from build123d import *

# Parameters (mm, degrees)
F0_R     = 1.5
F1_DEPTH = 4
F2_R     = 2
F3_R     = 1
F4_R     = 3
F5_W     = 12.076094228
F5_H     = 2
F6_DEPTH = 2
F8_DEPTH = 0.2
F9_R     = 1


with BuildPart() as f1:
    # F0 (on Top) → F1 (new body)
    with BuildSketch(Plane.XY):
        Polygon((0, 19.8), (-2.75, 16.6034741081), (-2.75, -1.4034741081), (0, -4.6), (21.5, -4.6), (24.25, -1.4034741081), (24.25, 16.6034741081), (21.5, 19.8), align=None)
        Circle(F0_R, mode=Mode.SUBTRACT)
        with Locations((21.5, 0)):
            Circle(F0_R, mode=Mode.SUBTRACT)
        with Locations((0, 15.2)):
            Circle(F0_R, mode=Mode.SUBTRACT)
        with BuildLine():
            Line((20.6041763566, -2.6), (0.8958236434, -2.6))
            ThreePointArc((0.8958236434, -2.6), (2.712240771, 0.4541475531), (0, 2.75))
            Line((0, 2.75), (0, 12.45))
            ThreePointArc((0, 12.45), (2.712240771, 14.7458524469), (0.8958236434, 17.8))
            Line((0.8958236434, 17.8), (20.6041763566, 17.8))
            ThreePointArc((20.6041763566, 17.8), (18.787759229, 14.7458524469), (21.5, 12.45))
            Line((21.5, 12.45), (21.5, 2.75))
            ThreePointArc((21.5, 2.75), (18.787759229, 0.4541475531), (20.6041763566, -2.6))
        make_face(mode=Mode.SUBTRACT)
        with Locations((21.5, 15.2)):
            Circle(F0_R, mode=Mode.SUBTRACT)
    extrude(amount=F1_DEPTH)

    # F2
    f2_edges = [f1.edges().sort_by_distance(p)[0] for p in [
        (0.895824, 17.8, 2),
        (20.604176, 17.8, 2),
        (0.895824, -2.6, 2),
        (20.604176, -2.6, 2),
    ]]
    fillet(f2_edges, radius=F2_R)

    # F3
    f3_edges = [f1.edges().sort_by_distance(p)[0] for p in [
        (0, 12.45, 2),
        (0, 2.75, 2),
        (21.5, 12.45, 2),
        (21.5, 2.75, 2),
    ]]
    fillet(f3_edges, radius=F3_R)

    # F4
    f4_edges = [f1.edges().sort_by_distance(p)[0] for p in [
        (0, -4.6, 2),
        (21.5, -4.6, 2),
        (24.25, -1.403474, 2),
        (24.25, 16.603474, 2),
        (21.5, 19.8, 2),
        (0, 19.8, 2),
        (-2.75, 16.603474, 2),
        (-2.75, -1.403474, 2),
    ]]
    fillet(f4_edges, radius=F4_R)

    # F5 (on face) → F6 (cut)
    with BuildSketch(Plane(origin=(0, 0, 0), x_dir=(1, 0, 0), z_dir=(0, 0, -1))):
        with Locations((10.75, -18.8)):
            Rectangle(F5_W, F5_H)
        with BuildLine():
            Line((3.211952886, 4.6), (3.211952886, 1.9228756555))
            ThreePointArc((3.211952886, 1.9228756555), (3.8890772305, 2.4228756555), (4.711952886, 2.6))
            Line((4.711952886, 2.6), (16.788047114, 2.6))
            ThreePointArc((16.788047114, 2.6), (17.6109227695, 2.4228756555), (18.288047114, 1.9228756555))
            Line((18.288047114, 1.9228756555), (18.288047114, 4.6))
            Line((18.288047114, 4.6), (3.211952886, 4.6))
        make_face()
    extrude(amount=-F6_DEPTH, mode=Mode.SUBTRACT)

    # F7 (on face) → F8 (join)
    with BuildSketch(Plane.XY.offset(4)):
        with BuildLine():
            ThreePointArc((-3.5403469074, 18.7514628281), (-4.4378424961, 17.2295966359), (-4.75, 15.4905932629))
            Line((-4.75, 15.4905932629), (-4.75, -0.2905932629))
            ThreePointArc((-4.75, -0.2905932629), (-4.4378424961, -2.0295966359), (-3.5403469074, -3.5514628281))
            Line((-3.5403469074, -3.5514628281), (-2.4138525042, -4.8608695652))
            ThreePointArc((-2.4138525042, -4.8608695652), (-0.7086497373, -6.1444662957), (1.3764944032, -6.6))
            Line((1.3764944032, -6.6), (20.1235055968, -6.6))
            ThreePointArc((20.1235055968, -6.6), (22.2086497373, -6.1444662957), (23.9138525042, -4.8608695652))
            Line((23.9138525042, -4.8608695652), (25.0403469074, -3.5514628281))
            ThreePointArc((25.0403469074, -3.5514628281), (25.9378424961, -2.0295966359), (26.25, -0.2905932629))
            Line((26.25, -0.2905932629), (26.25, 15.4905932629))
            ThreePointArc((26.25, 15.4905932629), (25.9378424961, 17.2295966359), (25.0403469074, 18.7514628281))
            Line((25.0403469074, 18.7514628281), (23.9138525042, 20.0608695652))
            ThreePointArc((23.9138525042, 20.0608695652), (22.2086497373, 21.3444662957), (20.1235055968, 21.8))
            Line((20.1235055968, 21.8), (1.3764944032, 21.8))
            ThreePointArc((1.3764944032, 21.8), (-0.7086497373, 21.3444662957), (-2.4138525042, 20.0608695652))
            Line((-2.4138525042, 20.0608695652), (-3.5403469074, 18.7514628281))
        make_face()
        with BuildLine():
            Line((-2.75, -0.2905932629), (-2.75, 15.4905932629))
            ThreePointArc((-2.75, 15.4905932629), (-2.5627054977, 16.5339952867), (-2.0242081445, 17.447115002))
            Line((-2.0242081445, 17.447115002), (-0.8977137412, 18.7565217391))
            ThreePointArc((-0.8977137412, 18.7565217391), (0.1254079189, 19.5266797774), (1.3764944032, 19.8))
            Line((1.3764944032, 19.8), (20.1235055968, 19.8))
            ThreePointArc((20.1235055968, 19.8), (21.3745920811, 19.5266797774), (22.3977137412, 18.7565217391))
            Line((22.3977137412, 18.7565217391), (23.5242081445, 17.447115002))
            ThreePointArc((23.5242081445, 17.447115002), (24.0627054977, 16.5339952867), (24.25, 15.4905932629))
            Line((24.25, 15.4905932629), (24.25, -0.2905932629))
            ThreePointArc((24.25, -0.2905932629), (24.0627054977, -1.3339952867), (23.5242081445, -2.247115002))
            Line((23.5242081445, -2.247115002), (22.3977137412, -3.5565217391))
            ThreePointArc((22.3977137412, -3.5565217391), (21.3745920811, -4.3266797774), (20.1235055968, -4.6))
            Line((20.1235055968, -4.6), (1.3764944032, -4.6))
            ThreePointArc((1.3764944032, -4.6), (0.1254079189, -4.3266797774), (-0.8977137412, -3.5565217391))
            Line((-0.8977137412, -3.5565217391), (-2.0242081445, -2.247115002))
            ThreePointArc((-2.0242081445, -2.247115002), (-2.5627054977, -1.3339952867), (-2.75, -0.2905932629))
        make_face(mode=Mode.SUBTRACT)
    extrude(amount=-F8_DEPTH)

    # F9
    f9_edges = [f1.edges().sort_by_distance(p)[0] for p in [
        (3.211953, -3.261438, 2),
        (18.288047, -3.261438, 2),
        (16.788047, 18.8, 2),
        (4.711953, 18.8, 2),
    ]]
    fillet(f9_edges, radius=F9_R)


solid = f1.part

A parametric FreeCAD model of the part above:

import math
import FreeCAD as App
import Part
import Sketcher
from FreeCAD import Vector


def edges_at(feature, points):
    """Names of the edges that pass closest to the given points."""
    edges = feature.Shape.Edges
    near = lambda p: min(range(len(edges)), key=lambda i: edges[i].distToShape(Part.Vertex(*p))[0])
    return sorted({f"Edge{near(p) + 1}" for p in points})

doc = App.newDocument("Part")
body = doc.addObject("PartDesign::Body", "Body")

sketch1 = body.newObject("Sketcher::SketchObject", "Sketch")
sketch1.AttachmentSupport = (doc.getObject("XY_Plane"), [""])
sketch1.MapMode = "FlatFace"
sketch1.addGeometry([
    Part.LineSegment(Vector(0, 19.8, 0), Vector(-2.8, 16.6, 0)),
    Part.LineSegment(Vector(-2.8, 16.6, 0), Vector(-2.8, -1.4, 0)),
    Part.LineSegment(Vector(-2.8, -1.4, 0), Vector(0, -4.6, 0)),
    Part.LineSegment(Vector(0, -4.6, 0), Vector(21.5, -4.6, 0)),
    Part.LineSegment(Vector(21.5, -4.6, 0), Vector(24.2, -1.4, 0)),
    Part.LineSegment(Vector(24.2, -1.4, 0), Vector(24.2, 16.6, 0)),
    Part.LineSegment(Vector(24.2, 16.6, 0), Vector(21.5, 19.8, 0)),
    Part.LineSegment(Vector(21.5, 19.8, 0), Vector(0, 19.8, 0)),
    Part.Circle(Vector(0, 0, 0), Vector(0, 0, 1), 1.5),
    Part.Circle(Vector(21.5, 0, 0), Vector(0, 0, 1), 1.5),
    Part.ArcOfCircle(Part.Circle(Vector(21.5, 0, 0), Vector(0, 0, 1), 2.8), math.radians(90), math.radians(251)),
    Part.LineSegment(Vector(20.6, -2.6, 0), Vector(0.9, -2.6, 0)),
    Part.ArcOfCircle(Part.Circle(Vector(0, 0, 0), Vector(0, 0, 1), 2.8), math.radians(-71), math.radians(90)),
    Part.LineSegment(Vector(0, 2.8, 0), Vector(0, 12.4, 0)),
    Part.ArcOfCircle(Part.Circle(Vector(0, 15.2, 0), Vector(0, 0, 1), 2.8), math.radians(-90), math.radians(71)),
    Part.LineSegment(Vector(0.9, 17.8, 0), Vector(20.6, 17.8, 0)),
    Part.ArcOfCircle(Part.Circle(Vector(21.5, 15.2, 0), Vector(0, 0, 1), 2.8), math.radians(109), math.radians(270)),
    Part.LineSegment(Vector(21.5, 12.4, 0), Vector(21.5, 2.8, 0)),
    Part.Circle(Vector(0, 15.2, 0), Vector(0, 0, 1), 1.5),
    Part.Circle(Vector(21.5, 15.2, 0), Vector(0, 0, 1), 1.5),
], False)
sketch1.addConstraint([
    Sketcher.Constraint("Coincident", 0, 2, 1, 1),
    Sketcher.Constraint("Coincident", 1, 2, 2, 1),
    Sketcher.Constraint("Coincident", 2, 2, 3, 1),
    Sketcher.Constraint("Coincident", 3, 2, 4, 1),
    Sketcher.Constraint("Coincident", 4, 2, 5, 1),
    Sketcher.Constraint("Coincident", 5, 2, 6, 1),
    Sketcher.Constraint("Coincident", 6, 2, 7, 1),
    Sketcher.Constraint("Coincident", 7, 2, 0, 1),
    Sketcher.Constraint("Coincident", 10, 2, 11, 1),
    Sketcher.Constraint("Coincident", 11, 2, 12, 1),
    Sketcher.Constraint("Coincident", 12, 2, 13, 1),
    Sketcher.Constraint("Coincident", 13, 2, 14, 1),
    Sketcher.Constraint("Coincident", 14, 2, 15, 1),
    Sketcher.Constraint("Coincident", 15, 2, 16, 1),
    Sketcher.Constraint("Coincident", 16, 2, 17, 1),
    Sketcher.Constraint("Coincident", 17, 2, 10, 1),
    Sketcher.Constraint("Vertical", 1),
    Sketcher.Constraint("Horizontal", 3),
    Sketcher.Constraint("Vertical", 5),
    Sketcher.Constraint("Horizontal", 7),
    Sketcher.Constraint("Horizontal", 11),
    Sketcher.Constraint("Vertical", 13),
    Sketcher.Constraint("Horizontal", 15),
    Sketcher.Constraint("Vertical", 17),
    Sketcher.Constraint("Coincident", 8, 3, -1, 1),
    Sketcher.Constraint("Coincident", 12, 3, -1, 1),
    Sketcher.Constraint("Coincident", 10, 3, 9, 3),
    Sketcher.Constraint("Coincident", 18, 3, 14, 3),
    Sketcher.Constraint("Coincident", 19, 3, 16, 3),
    Sketcher.Constraint("Equal", 8, 9),
    Sketcher.Constraint("Equal", 10, 12),
    Sketcher.Constraint("Equal", 12, 14),
    Sketcher.Constraint("Equal", 14, 16),
    Sketcher.Constraint("Equal", 9, 18),
    Sketcher.Constraint("Equal", 18, 19),
    Sketcher.Constraint("PointOnObject", 9, 3, -1),
    Sketcher.Constraint("PointOnObject", 14, 3, -2),
    Sketcher.Constraint("PointOnObject", 2, 2, -2),
    Sketcher.Constraint("PointOnObject", 7, 2, -2),
    Sketcher.Constraint("PointOnObject", 12, 2, -2),
    Sketcher.Constraint("Parallel", 0, 4),
    Sketcher.Constraint("Parallel", 2, 6),
    Sketcher.Constraint("Horizontal", 14, 3, 16, 3),
    Sketcher.Constraint("Horizontal", 1, 2, 4, 2),
    Sketcher.Constraint("Horizontal", 0, 2, 5, 2),
    Sketcher.Constraint("Vertical", 10, 3, 16, 3),
    Sketcher.Constraint("Vertical", 19, 3, 3, 2),
    Sketcher.Constraint("Vertical", 3, 2, 6, 2),
    Sketcher.Constraint("Vertical", 11, 2, 14, 2),
    Sketcher.Constraint("Vertical", 6, 2, 16, 2),
    Sketcher.Constraint("Diameter", 8, 3.0),
    Sketcher.Constraint("Radius", 10, 2.75),
    Sketcher.Constraint("DistanceX", 3, 1, 3, 2, 21.5),
    Sketcher.Constraint("DistanceY", 13, 1, 13, 2, 9.7),
    Sketcher.Constraint("DistanceY", 3, 2, 10, 2, 2.0),
    Sketcher.Constraint("DistanceY", 14, 2, 7, 2, 2.0),
    Sketcher.Constraint("DistanceY", 2, 2, -1, 1, 4.6),
    Sketcher.Constraint("DistanceX", 0, 2, -1, 1, 2.75),
    Sketcher.Constraint("DistanceY", 1, 2, 1, 1, 18.006948),
])
pad1 = body.newObject("PartDesign::Pad", "Pad")
pad1.Profile = sketch1
pad1.Length = 4
doc.recompute()

fillet = body.newObject("PartDesign::Fillet", "Fillet")
fillet.Base = (pad1, edges_at(pad1, [
    (0.896, 17.8, 2),
    (20.604, 17.8, 2),
    (0.896, -2.6, 2),
    (20.604, -2.6, 2),
]))
fillet.Radius = 2
doc.recompute()

fillet2 = body.newObject("PartDesign::Fillet", "Fillet001")
fillet2.Base = (fillet, edges_at(fillet, [
    (0, 12.45, 2),
    (0, 2.75, 2),
    (21.5, 12.45, 2),
    (21.5, 2.75, 2),
]))
fillet2.Radius = 1
doc.recompute()

fillet3 = body.newObject("PartDesign::Fillet", "Fillet002")
fillet3.Base = (fillet2, edges_at(fillet2, [
    (0, -4.6, 2),
    (21.5, -4.6, 2),
    (24.25, -1.403, 2),
    (24.25, 16.603, 2),
    (21.5, 19.8, 2),
    (0, 19.8, 2),
    (-2.75, 16.603, 2),
    (-2.75, -1.403, 2),
]))
fillet3.Radius = 3

sketch2 = body.newObject("Sketcher::SketchObject", "Sketch001")
sketch2.AttachmentSupport = (doc.getObject("XY_Plane"), [""])
sketch2.MapMode = "FlatFace"
sketch2.addGeometry([
    Part.LineSegment(Vector(4.7, 17.8, 0), Vector(4.7, 19.8, 0)),
    Part.LineSegment(Vector(4.7, 19.8, 0), Vector(16.8, 19.8, 0)),
    Part.LineSegment(Vector(16.8, 19.8, 0), Vector(16.8, 17.8, 0)),
    Part.LineSegment(Vector(16.8, 17.8, 0), Vector(4.7, 17.8, 0)),
    Part.LineSegment(Vector(3.2, -4.6, 0), Vector(3.2, -1.9, 0)),
    Part.ArcOfCircle(Part.Circle(Vector(4.7, -0.6, 0), Vector(0, 0, 1), 2), math.radians(-139), math.radians(-90)),
    Part.LineSegment(Vector(4.7, -2.6, 0), Vector(16.8, -2.6, 0)),
    Part.ArcOfCircle(Part.Circle(Vector(16.8, -0.6, 0), Vector(0, 0, 1), 2), math.radians(-90), math.radians(-41)),
    Part.LineSegment(Vector(18.3, -1.9, 0), Vector(18.3, -4.6, 0)),
    Part.LineSegment(Vector(18.3, -4.6, 0), Vector(3.2, -4.6, 0)),
], False)
sketch2.addConstraint([
    Sketcher.Constraint("Coincident", 0, 2, 1, 1),
    Sketcher.Constraint("Coincident", 1, 2, 2, 1),
    Sketcher.Constraint("Coincident", 2, 2, 3, 1),
    Sketcher.Constraint("Coincident", 3, 2, 0, 1),
    Sketcher.Constraint("Coincident", 4, 2, 5, 1),
    Sketcher.Constraint("Tangent", 5, 2, 6, 1),
    Sketcher.Constraint("Tangent", 6, 2, 7, 1),
    Sketcher.Constraint("Coincident", 7, 2, 8, 1),
    Sketcher.Constraint("Coincident", 8, 2, 9, 1),
    Sketcher.Constraint("Coincident", 9, 2, 4, 1),
    Sketcher.Constraint("Vertical", 0),
    Sketcher.Constraint("Horizontal", 1),
    Sketcher.Constraint("Vertical", 2),
    Sketcher.Constraint("Horizontal", 3),
    Sketcher.Constraint("Vertical", 4),
    Sketcher.Constraint("Horizontal", 6),
    Sketcher.Constraint("Vertical", 8),
    Sketcher.Constraint("Horizontal", 9),
    Sketcher.Constraint("Equal", 5, 7),
    Sketcher.Constraint("Horizontal", 4, 2, 7, 2),
    Sketcher.Constraint("Vertical", 5, 3, 0, 2),
    Sketcher.Constraint("Vertical", 7, 3, 1, 2),
    Sketcher.Constraint("Radius", 5, 2.0),
    Sketcher.Constraint("DistanceY", 0, 1, 0, 2, 2.0),
    Sketcher.Constraint("DistanceY", 8, 2, 6, 2, 2.0),
    Sketcher.Constraint("DistanceY", 5, 3, -1, 1, 0.6),
    Sketcher.Constraint("DistanceY", -1, 1, 0, 2, 19.8),
    Sketcher.Constraint("DistanceX", 4, 2, 5, 3, 1.5),
    Sketcher.Constraint("DistanceX", 1, 1, 1, 2, 12.076094),
    Sketcher.Constraint("DistanceX", -1, 1, 5, 3, 4.711953),
])
pocket1 = body.newObject("PartDesign::Pocket", "Pocket")
pocket1.Profile = sketch2
pocket1.Length = 2
pocket1.Reversed = True

sketch3 = body.newObject("Sketcher::SketchObject", "Sketch002")
sketch3.AttachmentSupport = (doc.getObject("XY_Plane"), [""])
sketch3.MapMode = "FlatFace"
sketch3.AttachmentOffset = App.Placement(Vector(0, 0, 4), App.Rotation())
sketch3.addGeometry([
    Part.ArcOfCircle(Part.Circle(Vector(0.2, 15.5, 0), Vector(0, 0, 1), 5), math.radians(139), math.radians(180)),
    Part.LineSegment(Vector(-4.8, 15.5, 0), Vector(-4.8, -0.3, 0)),
    Part.ArcOfCircle(Part.Circle(Vector(0.2, -0.3, 0), Vector(0, 0, 1), 5), math.radians(180), math.radians(221)),
    Part.LineSegment(Vector(-3.5, -3.6, 0), Vector(-2.4, -4.9, 0)),
    Part.ArcOfCircle(Part.Circle(Vector(1.4, -1.6, 0), Vector(0, 0, 1), 5), math.radians(-139), math.radians(-90)),
    Part.LineSegment(Vector(1.4, -6.6, 0), Vector(20.1, -6.6, 0)),
    Part.ArcOfCircle(Part.Circle(Vector(20.1, -1.6, 0), Vector(0, 0, 1), 5), math.radians(-90), math.radians(-41)),
    Part.LineSegment(Vector(23.9, -4.9, 0), Vector(25, -3.6, 0)),
    Part.ArcOfCircle(Part.Circle(Vector(21.2, -0.3, 0), Vector(0, 0, 1), 5), math.radians(-41), math.radians(0)),
    Part.LineSegment(Vector(26.2, -0.3, 0), Vector(26.2, 15.5, 0)),
    Part.ArcOfCircle(Part.Circle(Vector(21.2, 15.5, 0), Vector(0, 0, 1), 5), math.radians(0), math.radians(41)),
    Part.LineSegment(Vector(25, 18.8, 0), Vector(23.9, 20.1, 0)),
    Part.ArcOfCircle(Part.Circle(Vector(20.1, 16.8, 0), Vector(0, 0, 1), 5), math.radians(41), math.radians(90)),
    Part.LineSegment(Vector(20.1, 21.8, 0), Vector(1.4, 21.8, 0)),
    Part.ArcOfCircle(Part.Circle(Vector(1.4, 16.8, 0), Vector(0, 0, 1), 5), math.radians(90), math.radians(139)),
    Part.LineSegment(Vector(-2.4, 20.1, 0), Vector(-3.5, 18.8, 0)),
    Part.ArcOfCircle(Part.Circle(Vector(0.2, -0.3, 0), Vector(0, 0, 1), 3), math.radians(180), math.radians(221)),
    Part.LineSegment(Vector(-2.8, -0.3, 0), Vector(-2.8, 15.5, 0)),
    Part.ArcOfCircle(Part.Circle(Vector(0.2, 15.5, 0), Vector(0, 0, 1), 3), math.radians(139), math.radians(180)),
    Part.LineSegment(Vector(-2, 17.4, 0), Vector(-0.9, 18.8, 0)),
    Part.ArcOfCircle(Part.Circle(Vector(1.4, 16.8, 0), Vector(0, 0, 1), 3), math.radians(90), math.radians(139)),
    Part.LineSegment(Vector(1.4, 19.8, 0), Vector(20.1, 19.8, 0)),
    Part.ArcOfCircle(Part.Circle(Vector(20.1, 16.8, 0), Vector(0, 0, 1), 3), math.radians(41), math.radians(90)),
    Part.LineSegment(Vector(22.4, 18.8, 0), Vector(23.5, 17.4, 0)),
    Part.ArcOfCircle(Part.Circle(Vector(21.2, 15.5, 0), Vector(0, 0, 1), 3), math.radians(0), math.radians(41)),
    Part.LineSegment(Vector(24.2, 15.5, 0), Vector(24.2, -0.3, 0)),
    Part.ArcOfCircle(Part.Circle(Vector(21.2, -0.3, 0), Vector(0, 0, 1), 3), math.radians(-41), math.radians(0)),
    Part.LineSegment(Vector(23.5, -2.2, 0), Vector(22.4, -3.6, 0)),
    Part.ArcOfCircle(Part.Circle(Vector(20.1, -1.6, 0), Vector(0, 0, 1), 3), math.radians(-90), math.radians(-41)),
    Part.LineSegment(Vector(20.1, -4.6, 0), Vector(1.4, -4.6, 0)),
    Part.ArcOfCircle(Part.Circle(Vector(1.4, -1.6, 0), Vector(0, 0, 1), 3), math.radians(-139), math.radians(-90)),
    Part.LineSegment(Vector(-0.9, -3.6, 0), Vector(-2, -2.2, 0)),
], False)
sketch3.addConstraint([
    Sketcher.Constraint("Tangent", 0, 2, 1, 1),
    Sketcher.Constraint("Tangent", 1, 2, 2, 1),
    Sketcher.Constraint("Tangent", 2, 2, 3, 1),
    Sketcher.Constraint("Tangent", 3, 2, 4, 1),
    Sketcher.Constraint("Tangent", 4, 2, 5, 1),
    Sketcher.Constraint("Tangent", 5, 2, 6, 1),
    Sketcher.Constraint("Tangent", 6, 2, 7, 1),
    Sketcher.Constraint("Tangent", 7, 2, 8, 1),
    Sketcher.Constraint("Tangent", 8, 2, 9, 1),
    Sketcher.Constraint("Tangent", 9, 2, 10, 1),
    Sketcher.Constraint("Tangent", 10, 2, 11, 1),
    Sketcher.Constraint("Tangent", 11, 2, 12, 1),
    Sketcher.Constraint("Tangent", 12, 2, 13, 1),
    Sketcher.Constraint("Tangent", 13, 2, 14, 1),
    Sketcher.Constraint("Tangent", 14, 2, 15, 1),
    Sketcher.Constraint("Tangent", 15, 2, 0, 1),
    Sketcher.Constraint("Tangent", 16, 1, 17, 1),
    Sketcher.Constraint("Tangent", 17, 2, 18, 2),
    Sketcher.Constraint("Tangent", 18, 1, 19, 1),
    Sketcher.Constraint("Tangent", 19, 2, 20, 2),
    Sketcher.Constraint("Tangent", 20, 1, 21, 1),
    Sketcher.Constraint("Tangent", 21, 2, 22, 2),
    Sketcher.Constraint("Tangent", 22, 1, 23, 1),
    Sketcher.Constraint("Tangent", 23, 2, 24, 2),
    Sketcher.Constraint("Tangent", 24, 1, 25, 1),
    Sketcher.Constraint("Tangent", 25, 2, 26, 2),
    Sketcher.Constraint("Tangent", 26, 1, 27, 1),
    Sketcher.Constraint("Tangent", 27, 2, 28, 2),
    Sketcher.Constraint("Tangent", 28, 1, 29, 1),
    Sketcher.Constraint("Tangent", 29, 2, 30, 2),
    Sketcher.Constraint("Tangent", 30, 1, 31, 1),
    Sketcher.Constraint("Tangent", 31, 2, 16, 2),
    Sketcher.Constraint("Vertical", 1),
    Sketcher.Constraint("Horizontal", 5),
    Sketcher.Constraint("Vertical", 9),
    Sketcher.Constraint("Horizontal", 13),
    Sketcher.Constraint("Vertical", 17),
    Sketcher.Constraint("Horizontal", 21),
    Sketcher.Constraint("Vertical", 25),
    Sketcher.Constraint("Horizontal", 29),
    Sketcher.Constraint("Coincident", 16, 3, 2, 3),
    Sketcher.Constraint("Coincident", 18, 3, 0, 3),
    Sketcher.Constraint("Coincident", 20, 3, 14, 3),
    Sketcher.Constraint("Coincident", 22, 3, 12, 3),
    Sketcher.Constraint("Coincident", 24, 3, 10, 3),
    Sketcher.Constraint("Coincident", 26, 3, 8, 3),
    Sketcher.Constraint("Coincident", 28, 3, 6, 3),
    Sketcher.Constraint("Coincident", 30, 3, 4, 3),
    Sketcher.Constraint("Equal", 0, 2),
    Sketcher.Constraint("Equal", 2, 4),
    Sketcher.Constraint("Equal", 4, 6),
    Sketcher.Constraint("Equal", 6, 8),
    Sketcher.Constraint("Equal", 8, 10),
    Sketcher.Constraint("Equal", 10, 12),
    Sketcher.Constraint("Equal", 12, 14),
    Sketcher.Constraint("Equal", 18, 20),
    Sketcher.Constraint("Equal", 22, 24),
    Sketcher.Constraint("Equal", 26, 28),
    Sketcher.Constraint("Parallel", 3, 11),
    Sketcher.Constraint("Parallel", 7, 15),
    Sketcher.Constraint("Horizontal", 2, 3, 8, 3),
    Sketcher.Constraint("Horizontal", 0, 3, 10, 3),
    Sketcher.Constraint("Horizontal", 3, 2, 6, 2),
    Sketcher.Constraint("Vertical", 6, 3, 12, 3),
    Sketcher.Constraint("Radius", 0, 5.0),
    Sketcher.Constraint("Radius", 16, 3.0),
    Sketcher.Constraint("DistanceX", 2, 3, 8, 3, 21.0),
    Sketcher.Constraint("DistanceY", 4, 3, -1, 1, 1.6),
    Sketcher.Constraint("DistanceY", -1, 1, 12, 3, 16.8),
    Sketcher.Constraint("DistanceX", -1, 1, 0, 3, 0.25),
    Sketcher.Constraint("DistanceX", 5, 1, 5, 2, 18.747011),
    Sketcher.Constraint("Distance", 3, 1.727291),
])
pad2 = body.newObject("PartDesign::Pad", "Pad001")
pad2.Profile = sketch3
pad2.Length = 0.2
pad2.Reversed = True
doc.recompute()

fillet4 = body.newObject("PartDesign::Fillet", "Fillet003")
fillet4.Base = (pad2, edges_at(pad2, [
    (3.212, -3.261, 2),
    (18.288, -3.261, 2),
    (16.788, 18.8, 2),
    (4.712, 18.8, 2),
]))
fillet4.Radius = 1

doc.recompute()
